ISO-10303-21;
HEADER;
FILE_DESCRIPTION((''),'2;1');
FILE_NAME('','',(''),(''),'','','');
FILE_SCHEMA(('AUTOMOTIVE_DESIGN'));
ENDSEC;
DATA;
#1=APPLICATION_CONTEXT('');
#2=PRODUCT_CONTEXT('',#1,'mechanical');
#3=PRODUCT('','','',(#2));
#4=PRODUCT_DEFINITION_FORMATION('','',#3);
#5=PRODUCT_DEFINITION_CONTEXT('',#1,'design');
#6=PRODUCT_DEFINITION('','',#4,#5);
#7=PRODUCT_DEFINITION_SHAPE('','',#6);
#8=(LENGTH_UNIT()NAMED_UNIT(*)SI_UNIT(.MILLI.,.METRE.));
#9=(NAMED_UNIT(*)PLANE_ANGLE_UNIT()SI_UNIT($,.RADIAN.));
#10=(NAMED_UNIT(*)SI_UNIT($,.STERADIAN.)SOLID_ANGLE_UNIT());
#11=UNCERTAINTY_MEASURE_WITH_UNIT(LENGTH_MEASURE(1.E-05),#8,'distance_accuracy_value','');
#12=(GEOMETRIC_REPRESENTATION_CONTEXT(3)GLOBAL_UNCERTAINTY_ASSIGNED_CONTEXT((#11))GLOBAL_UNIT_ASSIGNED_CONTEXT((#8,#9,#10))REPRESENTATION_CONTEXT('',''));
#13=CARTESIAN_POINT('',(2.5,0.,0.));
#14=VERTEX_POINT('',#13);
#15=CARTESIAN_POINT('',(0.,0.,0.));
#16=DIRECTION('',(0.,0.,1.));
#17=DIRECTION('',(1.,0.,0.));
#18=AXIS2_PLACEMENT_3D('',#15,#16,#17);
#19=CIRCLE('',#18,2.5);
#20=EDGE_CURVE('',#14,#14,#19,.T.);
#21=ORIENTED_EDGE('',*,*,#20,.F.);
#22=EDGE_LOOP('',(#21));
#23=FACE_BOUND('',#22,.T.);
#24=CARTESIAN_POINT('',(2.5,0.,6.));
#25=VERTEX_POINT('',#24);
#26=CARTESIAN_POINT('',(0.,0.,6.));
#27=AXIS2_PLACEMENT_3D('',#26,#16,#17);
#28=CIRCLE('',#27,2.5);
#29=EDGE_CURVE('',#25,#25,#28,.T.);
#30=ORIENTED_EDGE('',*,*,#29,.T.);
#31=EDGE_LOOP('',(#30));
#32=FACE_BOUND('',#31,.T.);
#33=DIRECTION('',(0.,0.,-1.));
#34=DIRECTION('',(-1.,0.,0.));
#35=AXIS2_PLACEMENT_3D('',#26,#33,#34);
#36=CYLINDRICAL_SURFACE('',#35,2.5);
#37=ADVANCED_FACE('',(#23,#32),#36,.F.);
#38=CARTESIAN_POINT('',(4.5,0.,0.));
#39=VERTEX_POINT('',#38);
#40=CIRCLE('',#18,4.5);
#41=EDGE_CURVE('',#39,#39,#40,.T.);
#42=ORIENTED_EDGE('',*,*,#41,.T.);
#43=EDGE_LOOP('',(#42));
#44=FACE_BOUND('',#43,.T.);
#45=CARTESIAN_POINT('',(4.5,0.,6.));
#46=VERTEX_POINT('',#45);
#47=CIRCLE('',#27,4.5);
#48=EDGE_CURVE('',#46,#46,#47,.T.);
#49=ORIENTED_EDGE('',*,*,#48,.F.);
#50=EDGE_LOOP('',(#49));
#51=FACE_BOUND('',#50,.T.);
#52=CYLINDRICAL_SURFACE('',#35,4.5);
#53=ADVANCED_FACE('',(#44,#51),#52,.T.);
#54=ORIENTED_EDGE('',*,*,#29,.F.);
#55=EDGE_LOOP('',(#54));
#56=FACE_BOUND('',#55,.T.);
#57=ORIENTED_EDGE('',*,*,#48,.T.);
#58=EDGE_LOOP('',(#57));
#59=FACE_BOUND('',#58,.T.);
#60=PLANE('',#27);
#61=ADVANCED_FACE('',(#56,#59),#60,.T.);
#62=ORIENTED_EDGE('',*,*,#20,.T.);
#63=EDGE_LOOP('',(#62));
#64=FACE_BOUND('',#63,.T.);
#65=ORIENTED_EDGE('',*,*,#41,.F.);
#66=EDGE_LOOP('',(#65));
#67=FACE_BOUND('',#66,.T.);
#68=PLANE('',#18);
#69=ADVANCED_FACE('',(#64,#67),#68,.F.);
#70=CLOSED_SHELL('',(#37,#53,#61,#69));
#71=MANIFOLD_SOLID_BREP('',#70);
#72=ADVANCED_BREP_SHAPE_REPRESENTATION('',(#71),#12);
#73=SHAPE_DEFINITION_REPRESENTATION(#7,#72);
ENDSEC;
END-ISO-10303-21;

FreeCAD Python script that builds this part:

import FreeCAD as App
import Part
import Sketcher
from FreeCAD import Vector

doc = App.newDocument("Part")
body = doc.addObject("PartDesign::Body", "Body")

# Sketch on XY plane
sketch1 = body.newObject("Sketcher::SketchObject", "Sketch")
sketch1.AttachmentSupport = (doc.getObject("XY_Plane"), [""])
sketch1.MapMode = "FlatFace"
sketch1.addGeometry([
    Part.Circle(Vector(0, 0, 0), Vector(0, 0, 1), 4.5),
    Part.Circle(Vector(0, 0, 0), Vector(0, 0, 1), 2.5),
], False)
sketch1.addConstraint([
    Sketcher.Constraint("Coincident", 0, 3, -1, 1),
    Sketcher.Constraint("Coincident", 1, 3, -1, 1),
    Sketcher.Constraint("Diameter", 0, 9.0),
    Sketcher.Constraint("Diameter", 1, 5.0),
])
pad1 = body.newObject("PartDesign::Pad", "Pad")
pad1.Profile = sketch1
pad1.Length = 6

doc.recompute()
